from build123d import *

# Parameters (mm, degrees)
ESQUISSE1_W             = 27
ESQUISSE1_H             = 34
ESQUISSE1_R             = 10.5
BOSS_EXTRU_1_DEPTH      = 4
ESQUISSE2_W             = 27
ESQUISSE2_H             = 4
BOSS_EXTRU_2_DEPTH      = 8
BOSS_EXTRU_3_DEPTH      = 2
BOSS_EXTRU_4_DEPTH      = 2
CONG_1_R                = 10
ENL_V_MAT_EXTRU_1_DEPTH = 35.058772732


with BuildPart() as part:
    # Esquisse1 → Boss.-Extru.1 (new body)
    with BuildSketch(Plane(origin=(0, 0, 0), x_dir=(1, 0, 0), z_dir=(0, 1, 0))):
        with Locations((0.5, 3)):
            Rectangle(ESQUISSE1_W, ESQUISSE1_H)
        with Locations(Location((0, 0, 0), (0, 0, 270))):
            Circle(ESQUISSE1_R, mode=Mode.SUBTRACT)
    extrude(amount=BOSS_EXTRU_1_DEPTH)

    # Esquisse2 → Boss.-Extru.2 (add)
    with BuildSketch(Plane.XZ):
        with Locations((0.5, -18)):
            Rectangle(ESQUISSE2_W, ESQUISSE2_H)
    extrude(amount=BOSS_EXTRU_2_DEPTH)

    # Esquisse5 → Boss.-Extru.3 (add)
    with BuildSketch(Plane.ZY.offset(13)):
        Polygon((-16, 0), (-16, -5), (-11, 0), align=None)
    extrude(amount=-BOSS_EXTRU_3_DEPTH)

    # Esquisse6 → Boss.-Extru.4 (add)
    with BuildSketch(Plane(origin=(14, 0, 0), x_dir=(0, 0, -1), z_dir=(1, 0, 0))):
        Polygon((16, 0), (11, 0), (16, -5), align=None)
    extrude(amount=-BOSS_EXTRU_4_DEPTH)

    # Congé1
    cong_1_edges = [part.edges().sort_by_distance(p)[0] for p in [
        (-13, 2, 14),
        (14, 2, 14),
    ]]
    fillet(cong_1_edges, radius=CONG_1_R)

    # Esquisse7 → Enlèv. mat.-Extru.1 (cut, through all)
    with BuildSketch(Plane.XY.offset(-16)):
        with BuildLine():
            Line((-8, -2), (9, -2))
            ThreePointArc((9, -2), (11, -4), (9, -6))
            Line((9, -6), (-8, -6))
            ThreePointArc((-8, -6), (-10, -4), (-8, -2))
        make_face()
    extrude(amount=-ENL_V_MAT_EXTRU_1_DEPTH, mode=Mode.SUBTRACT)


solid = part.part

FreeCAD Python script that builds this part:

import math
import FreeCAD as App
import Part
import Sketcher

V = App.Vector


def edges_at(feature, points):
    """Names of the edges that pass closest to the given points."""
    edges = feature.Shape.Edges
    near = lambda p: min(range(len(edges)), key=lambda i: edges[i].distToShape(Part.Vertex(*p))[0])
    return sorted({f"Edge{near(p) + 1}" for p in points})

doc = App.newDocument("Part")
params = doc.addObject("Spreadsheet::Sheet", "Params")
for row, (alias, value) in enumerate([
    ("sketch1_diameter", "21 mm"),
    ("sketch1_width", "27 mm"),
    ("sketch1_height", "34 mm"),
    ("pad1_length", "4 mm"),
    ("sketch2_width", "27 mm"),
    ("sketch2_height", "4 mm"),
    ("pad2_length", "8 mm"),
    ("sketch3_width", "5 mm"),
    ("pad3_length", "2 mm"),
    ("sketch4_width", "5 mm"),
    ("pad4_length", "2 mm"),
    ("fillet_radius", "10 mm"),
    ("sketch5_radius", "2 mm"),
    ("sketch5_width", "17 mm"),
], start=1):
    params.set(f"A{row}", alias)
    params.set(f"B{row}", "=" + value)
    params.setAlias(f"B{row}", alias)

body = doc.addObject("PartDesign::Body", "Body")

# Sketch on XZ plane
sketch1 = doc.addObject("Sketcher::SketchObject", "Sketch")
body.addObject(sketch1)
sketch1.AttachmentSupport = (doc.XZ_Plane, [""])
sketch1.MapMode = "FlatFace"
sketch1.addGeometry([
    Part.LineSegment(V(-13, -20, 0), V(-13, 14, 0)),  # 0
    Part.LineSegment(V(-13, 14, 0), V(14, 14, 0)),  # 1
    Part.LineSegment(V(14, 14, 0), V(14, -20, 0)),  # 2
    Part.LineSegment(V(14, -20, 0), V(-13, -20, 0)),  # 3
    Part.Circle(V(0, 0, 0), V(0, 0, 1), 10.5),  # 4
], False)
sketch1.addConstraint([
    Sketcher.Constraint("Coincident", 0, 2, 1, 1),
    Sketcher.Constraint("Coincident", 1, 2, 2, 1),
    Sketcher.Constraint("Coincident", 2, 2, 3, 1),
    Sketcher.Constraint("Coincident", 3, 2, 0, 1),
    Sketcher.Constraint("Vertical", 0),
    Sketcher.Constraint("Horizontal", 1),
    Sketcher.Constraint("Vertical", 2),
    Sketcher.Constraint("Horizontal", 3),
    Sketcher.Constraint("Coincident", 4, 3, -1, 1),
    Sketcher.Constraint("Diameter", 4, 21.0),
    Sketcher.Constraint("DistanceX", 1, 1, 1, 2, 27.0),
    Sketcher.Constraint("DistanceY", 0, 1, 0, 2, 34.0),
    Sketcher.Constraint("DistanceX", 0, 2, -1, 1, 13.0),
    Sketcher.Constraint("DistanceY", -1, 1, 0, 2, 14.0),
])
sketch1.setExpression("Constraints[9]", "Params.sketch1_diameter")
sketch1.setExpression("Constraints[10]", "Params.sketch1_width")
sketch1.setExpression("Constraints[11]", "Params.sketch1_height")
pad1 = doc.addObject("PartDesign::Pad", "Pad")
body.addObject(pad1)
pad1.Profile = sketch1
pad1.setExpression("Length", "Params.pad1_length")
pad1.Reversed = True

# Sketch on XZ plane
sketch2 = doc.addObject("Sketcher::SketchObject", "Sketch001")
body.addObject(sketch2)
sketch2.AttachmentSupport = (doc.XZ_Plane, [""])
sketch2.MapMode = "FlatFace"
sketch2.addGeometry([
    Part.LineSegment(V(-13, -16, 0), V(-13, -20, 0)),
    Part.LineSegment(V(-13, -20, 0), V(14, -20, 0)),
    Part.LineSegment(V(14, -20, 0), V(14, -16, 0)),
    Part.LineSegment(V(14, -16, 0), V(-13, -16, 0)),
], False)
sketch2.addConstraint([
    Sketcher.Constraint("Coincident", 0, 2, 1, 1),
    Sketcher.Constraint("Coincident", 1, 2, 2, 1),
    Sketcher.Constraint("Coincident", 2, 2, 3, 1),
    Sketcher.Constraint("Coincident", 3, 2, 0, 1),
    Sketcher.Constraint("Vertical", 0),
    Sketcher.Constraint("Horizontal", 1),
    Sketcher.Constraint("Vertical", 2),
    Sketcher.Constraint("Horizontal", 3),
    Sketcher.Constraint("DistanceX", 1, 1, 1, 2, 27.0),
    Sketcher.Constraint("DistanceY", 0, 2, 0, 1, 4.0),
    Sketcher.Constraint("DistanceX", 0, 2, -1, 1, 13.0),
    Sketcher.Constraint("DistanceY", 0, 2, -1, 1, 20.0),
])
sketch2.setExpression("Constraints[8]", "Params.sketch2_width")
sketch2.setExpression("Constraints[9]", "Params.sketch2_height")
pad2 = doc.addObject("PartDesign::Pad", "Pad001")
body.addObject(pad2)
pad2.Profile = sketch2
pad2.setExpression("Length", "Params.pad2_length")

# Sketch on YZ plane
sketch3 = doc.addObject("Sketcher::SketchObject", "Sketch002")
body.addObject(sketch3)
sketch3.AttachmentSupport = (doc.YZ_Plane, [""])
sketch3.MapMode = "FlatFace"
sketch3.AttachmentOffset = App.Placement(V(0, 0, -13), App.Rotation())
sketch3.addGeometry([
    Part.LineSegment(V(0, -16, 0), V(-5, -16, 0)),
    Part.LineSegment(V(-5, -16, 0), V(0, -11, 0)),
    Part.LineSegment(V(0, -11, 0), V(0, -16, 0)),
], False)
sketch3.addConstraint([
    Sketcher.Constraint("Coincident", 0, 2, 1, 1),
    Sketcher.Constraint("Coincident", 1, 2, 2, 1),
    Sketcher.Constraint("Coincident", 2, 2, 0, 1),
    Sketcher.Constraint("Horizontal", 0),
    Sketcher.Constraint("Vertical", 2),
    Sketcher.Constraint("PointOnObject", 1, 2, -2),
    Sketcher.Constraint("Equal", 0, 2),
    Sketcher.Constraint("DistanceX", 0, 2, 0, 1, 5.0),
    Sketcher.Constraint("DistanceY", 0, 2, -1, 1, 16.0),
])
sketch3.setExpression("Constraints[7]", "Params.sketch3_width")
pad3 = doc.addObject("PartDesign::Pad", "Pad002")
body.addObject(pad3)
pad3.Profile = sketch3
pad3.setExpression("Length", "Params.pad3_length")

# Sketch on YZ plane
sketch4 = doc.addObject("Sketcher::SketchObject", "Sketch003")
body.addObject(sketch4)
sketch4.AttachmentSupport = (doc.YZ_Plane, [""])
sketch4.MapMode = "FlatFace"
sketch4.AttachmentOffset = App.Placement(V(0, 0, 14), App.Rotation())
sketch4.addGeometry([
    Part.LineSegment(V(0, -16, 0), V(0, -11, 0)),
    Part.LineSegment(V(0, -11, 0), V(-5, -16, 0)),
    Part.LineSegment(V(-5, -16, 0), V(0, -16, 0)),
], False)
sketch4.addConstraint([
    Sketcher.Constraint("Coincident", 0, 2, 1, 1),
    Sketcher.Constraint("Coincident", 1, 2, 2, 1),
    Sketcher.Constraint("Coincident", 2, 2, 0, 1),
    Sketcher.Constraint("Vertical", 0),
    Sketcher.Constraint("Horizontal", 2),
    Sketcher.Constraint("PointOnObject", 0, 2, -2),
    Sketcher.Constraint("Equal", 2, 0),
    Sketcher.Constraint("DistanceX", 2, 1, 2, 2, 5.0),
    Sketcher.Constraint("DistanceY", 0, 2, -1, 1, 11.0),
])
sketch4.setExpression("Constraints[7]", "Params.sketch4_width")
pad4 = doc.addObject("PartDesign::Pad", "Pad003")
body.addObject(pad4)
pad4.Profile = sketch4
pad4.setExpression("Length", "Params.pad4_length")
pad4.Reversed = True
doc.recompute()

fillet = doc.addObject("PartDesign::Fillet", "Fillet")
body.addObject(fillet)
fillet.Base = (pad4, edges_at(pad4, [(-13, 2, 14), (14, 2, 14)]))
fillet.setExpression("Radius", "Params.fillet_radius")

# Sketch on XY plane
sketch5 = doc.addObject("Sketcher::SketchObject", "Sketch004")
body.addObject(sketch5)
sketch5.AttachmentSupport = (doc.XY_Plane, [""])
sketch5.MapMode = "FlatFace"
sketch5.AttachmentOffset = App.Placement(V(0, 0, -16), App.Rotation())
sketch5.addGeometry([
    Part.LineSegment(V(9, -2, 0), V(-8, -2, 0)),
    Part.ArcOfCircle(Part.Circle(V(-8, -4, 0), V(0, 0, 1), 2), math.radians(90), math.radians(270)),
    Part.LineSegment(V(-8, -6, 0), V(9, -6, 0)),
    Part.ArcOfCircle(Part.Circle(V(9, -4, 0), V(0, 0, 1), 2), math.radians(-90), math.radians(90)),
], False)
sketch5.addConstraint([
    Sketcher.Constraint("Tangent", 0, 2, 1, 1),
    Sketcher.Constraint("Tangent", 1, 2, 2, 1),
    Sketcher.Constraint("Tangent", 2, 2, 3, 1),
    Sketcher.Constraint("Tangent", 3, 2, 0, 1),
    Sketcher.Constraint("Horizontal", 0),
    Sketcher.Constraint("Horizontal", 2),
    Sketcher.Constraint("Radius", 1, 2.0),
    Sketcher.Constraint("DistanceX", 0, 2, 0, 1, 17.0),
    Sketcher.Constraint("DistanceX", 1, 3, -1, 1, 8.0),
    Sketcher.Constraint("DistanceY", 1, 3, -1, 1, 4.0),
])
sketch5.setExpression("Constraints[6]", "Params.sketch5_radius")
sketch5.setExpression("Constraints[7]", "Params.sketch5_width")
pocket1 = doc.addObject("PartDesign::Pocket", "Pocket")
body.addObject(pocket1)
pocket1.Profile = sketch5
pocket1.Type = "ThroughAll"

doc.recompute()
